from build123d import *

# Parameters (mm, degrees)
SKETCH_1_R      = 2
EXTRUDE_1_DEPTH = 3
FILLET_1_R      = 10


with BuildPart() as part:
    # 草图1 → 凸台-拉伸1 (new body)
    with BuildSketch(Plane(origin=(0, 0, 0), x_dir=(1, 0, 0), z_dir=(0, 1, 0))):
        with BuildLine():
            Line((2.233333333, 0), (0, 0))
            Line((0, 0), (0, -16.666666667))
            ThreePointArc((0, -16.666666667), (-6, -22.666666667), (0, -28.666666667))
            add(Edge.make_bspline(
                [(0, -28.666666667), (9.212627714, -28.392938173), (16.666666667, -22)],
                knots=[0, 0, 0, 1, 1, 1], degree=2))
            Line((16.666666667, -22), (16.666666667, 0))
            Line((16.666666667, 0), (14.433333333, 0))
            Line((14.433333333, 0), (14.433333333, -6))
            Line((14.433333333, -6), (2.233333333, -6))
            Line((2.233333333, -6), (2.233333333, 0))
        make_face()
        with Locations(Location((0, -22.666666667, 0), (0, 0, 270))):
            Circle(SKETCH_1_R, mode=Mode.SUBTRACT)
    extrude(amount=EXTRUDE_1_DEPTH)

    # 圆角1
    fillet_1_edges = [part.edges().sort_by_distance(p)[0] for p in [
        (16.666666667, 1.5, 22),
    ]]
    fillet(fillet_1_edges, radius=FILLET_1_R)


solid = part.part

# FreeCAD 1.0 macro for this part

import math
import FreeCAD as App
import Part
import Sketcher
from FreeCAD import Vector


def edges_at(feature, points):
    """Names of the edges that pass closest to the given points."""
    edges = feature.Shape.Edges
    near = lambda p: min(range(len(edges)), key=lambda i: edges[i].distToShape(Part.Vertex(*p))[0])
    return sorted({f"Edge{near(p) + 1}" for p in points})

doc = App.newDocument("Part")
params = doc.addObject("Spreadsheet::Sheet", "Params")
for row, (alias, value) in enumerate([
    ("sketch1_diameter", "4 mm"),
    ("sketch1_radius", "6 mm"),
    ("sketch1_height", "6 mm"),
    ("sketch1_width", "12.2 mm"),
    ("pad1_length", "3 mm"),
    ("fillet_radius", "10 mm"),
], start=1):
    params.set(f"A{row}", alias)
    params.set(f"B{row}", "=" + value)
    params.setAlias(f"B{row}", alias)

body = doc.addObject("PartDesign::Body", "Body")

# Sketch on XZ plane
sketch1 = body.newObject("Sketcher::SketchObject", "Sketch")
sketch1.AttachmentSupport = (doc.getObject("XZ_Plane"), [""])
sketch1.MapMode = "FlatFace"
sketch1.addGeometry([
    Part.LineSegment(Vector(2.233333, 0, 0), Vector(0, 0, 0)),  # 0
    Part.LineSegment(Vector(0, 0, 0), Vector(0, 16.666667, 0)),  # 1
    Part.ArcOfCircle(Part.Circle(Vector(0, 22.666667, 0), Vector(0, 0, 1), 6), math.radians(90), math.radians(270)),  # 2
    Part.BSplineCurve([Vector(0, 28.666667, 0), Vector(9.212628, 28.392938, 0), Vector(16.666667, 22, 0)], [3, 3], [0, 1], False, 2, [1, 1, 1], False),  # 3
    Part.LineSegment(Vector(16.666667, 22, 0), Vector(16.666667, 0, 0)),  # 4
    Part.LineSegment(Vector(16.666667, 0, 0), Vector(14.433333, 0, 0)),  # 5
    Part.LineSegment(Vector(14.433333, 0, 0), Vector(14.433333, 6, 0)),  # 6
    Part.LineSegment(Vector(14.433333, 6, 0), Vector(2.233333, 6, 0)),  # 7
    Part.LineSegment(Vector(2.233333, 6, 0), Vector(2.233333, 0, 0)),  # 8
    Part.Circle(Vector(0, 22.666667, 0), Vector(0, 0, 1), 2),  # 9
], False)
sketch1.addConstraint([
    Sketcher.Constraint("Block", 3),
    Sketcher.Constraint("Coincident", 0, 2, 1, 1),
    Sketcher.Constraint("Coincident", 1, 2, 2, 2),
    Sketcher.Constraint("Coincident", 2, 1, 3, 1),
    Sketcher.Constraint("Coincident", 3, 2, 4, 1),
    Sketcher.Constraint("Coincident", 4, 2, 5, 1),
    Sketcher.Constraint("Coincident", 5, 2, 6, 1),
    Sketcher.Constraint("Coincident", 6, 2, 7, 1),
    Sketcher.Constraint("Coincident", 7, 2, 8, 1),
    Sketcher.Constraint("Coincident", 8, 2, 0, 1),
    Sketcher.Constraint("Horizontal", 0),
    Sketcher.Constraint("Vertical", 1),
    Sketcher.Constraint("Vertical", 4),
    Sketcher.Constraint("Horizontal", 5),
    Sketcher.Constraint("Vertical", 6),
    Sketcher.Constraint("Horizontal", 7),
    Sketcher.Constraint("Vertical", 8),
    Sketcher.Constraint("Coincident", 0, 2, -1, 1),
    Sketcher.Constraint("Coincident", 9, 3, 2, 3),
    Sketcher.Constraint("PointOnObject", 2, 3, -2),
    Sketcher.Constraint("PointOnObject", 4, 2, -1),
    Sketcher.Constraint("Equal", 0, 5),
    Sketcher.Constraint("Diameter", 9, 4.0),
    Sketcher.Constraint("Radius", 2, 6.0),
    Sketcher.Constraint("DistanceY", 6, 1, 6, 2, 6.0),
    Sketcher.Constraint("DistanceX", 7, 2, 7, 1, 12.2),
])
sketch1.setExpression("Constraints[22]", "Params.sketch1_diameter")
sketch1.setExpression("Constraints[23]", "Params.sketch1_radius")
sketch1.setExpression("Constraints[24]", "Params.sketch1_height")
sketch1.setExpression("Constraints[25]", "Params.sketch1_width")
pad1 = body.newObject("PartDesign::Pad", "Pad")
pad1.Profile = sketch1
pad1.setExpression("Length", "Params.pad1_length")
pad1.Reversed = True
doc.recompute()

fillet = body.newObject("PartDesign::Fillet", "Fillet")
fillet.Base = (pad1, edges_at(pad1, [(16.667, 1.5, 22)]))
fillet.setExpression("Radius", "Params.fillet_radius")

doc.recompute()
